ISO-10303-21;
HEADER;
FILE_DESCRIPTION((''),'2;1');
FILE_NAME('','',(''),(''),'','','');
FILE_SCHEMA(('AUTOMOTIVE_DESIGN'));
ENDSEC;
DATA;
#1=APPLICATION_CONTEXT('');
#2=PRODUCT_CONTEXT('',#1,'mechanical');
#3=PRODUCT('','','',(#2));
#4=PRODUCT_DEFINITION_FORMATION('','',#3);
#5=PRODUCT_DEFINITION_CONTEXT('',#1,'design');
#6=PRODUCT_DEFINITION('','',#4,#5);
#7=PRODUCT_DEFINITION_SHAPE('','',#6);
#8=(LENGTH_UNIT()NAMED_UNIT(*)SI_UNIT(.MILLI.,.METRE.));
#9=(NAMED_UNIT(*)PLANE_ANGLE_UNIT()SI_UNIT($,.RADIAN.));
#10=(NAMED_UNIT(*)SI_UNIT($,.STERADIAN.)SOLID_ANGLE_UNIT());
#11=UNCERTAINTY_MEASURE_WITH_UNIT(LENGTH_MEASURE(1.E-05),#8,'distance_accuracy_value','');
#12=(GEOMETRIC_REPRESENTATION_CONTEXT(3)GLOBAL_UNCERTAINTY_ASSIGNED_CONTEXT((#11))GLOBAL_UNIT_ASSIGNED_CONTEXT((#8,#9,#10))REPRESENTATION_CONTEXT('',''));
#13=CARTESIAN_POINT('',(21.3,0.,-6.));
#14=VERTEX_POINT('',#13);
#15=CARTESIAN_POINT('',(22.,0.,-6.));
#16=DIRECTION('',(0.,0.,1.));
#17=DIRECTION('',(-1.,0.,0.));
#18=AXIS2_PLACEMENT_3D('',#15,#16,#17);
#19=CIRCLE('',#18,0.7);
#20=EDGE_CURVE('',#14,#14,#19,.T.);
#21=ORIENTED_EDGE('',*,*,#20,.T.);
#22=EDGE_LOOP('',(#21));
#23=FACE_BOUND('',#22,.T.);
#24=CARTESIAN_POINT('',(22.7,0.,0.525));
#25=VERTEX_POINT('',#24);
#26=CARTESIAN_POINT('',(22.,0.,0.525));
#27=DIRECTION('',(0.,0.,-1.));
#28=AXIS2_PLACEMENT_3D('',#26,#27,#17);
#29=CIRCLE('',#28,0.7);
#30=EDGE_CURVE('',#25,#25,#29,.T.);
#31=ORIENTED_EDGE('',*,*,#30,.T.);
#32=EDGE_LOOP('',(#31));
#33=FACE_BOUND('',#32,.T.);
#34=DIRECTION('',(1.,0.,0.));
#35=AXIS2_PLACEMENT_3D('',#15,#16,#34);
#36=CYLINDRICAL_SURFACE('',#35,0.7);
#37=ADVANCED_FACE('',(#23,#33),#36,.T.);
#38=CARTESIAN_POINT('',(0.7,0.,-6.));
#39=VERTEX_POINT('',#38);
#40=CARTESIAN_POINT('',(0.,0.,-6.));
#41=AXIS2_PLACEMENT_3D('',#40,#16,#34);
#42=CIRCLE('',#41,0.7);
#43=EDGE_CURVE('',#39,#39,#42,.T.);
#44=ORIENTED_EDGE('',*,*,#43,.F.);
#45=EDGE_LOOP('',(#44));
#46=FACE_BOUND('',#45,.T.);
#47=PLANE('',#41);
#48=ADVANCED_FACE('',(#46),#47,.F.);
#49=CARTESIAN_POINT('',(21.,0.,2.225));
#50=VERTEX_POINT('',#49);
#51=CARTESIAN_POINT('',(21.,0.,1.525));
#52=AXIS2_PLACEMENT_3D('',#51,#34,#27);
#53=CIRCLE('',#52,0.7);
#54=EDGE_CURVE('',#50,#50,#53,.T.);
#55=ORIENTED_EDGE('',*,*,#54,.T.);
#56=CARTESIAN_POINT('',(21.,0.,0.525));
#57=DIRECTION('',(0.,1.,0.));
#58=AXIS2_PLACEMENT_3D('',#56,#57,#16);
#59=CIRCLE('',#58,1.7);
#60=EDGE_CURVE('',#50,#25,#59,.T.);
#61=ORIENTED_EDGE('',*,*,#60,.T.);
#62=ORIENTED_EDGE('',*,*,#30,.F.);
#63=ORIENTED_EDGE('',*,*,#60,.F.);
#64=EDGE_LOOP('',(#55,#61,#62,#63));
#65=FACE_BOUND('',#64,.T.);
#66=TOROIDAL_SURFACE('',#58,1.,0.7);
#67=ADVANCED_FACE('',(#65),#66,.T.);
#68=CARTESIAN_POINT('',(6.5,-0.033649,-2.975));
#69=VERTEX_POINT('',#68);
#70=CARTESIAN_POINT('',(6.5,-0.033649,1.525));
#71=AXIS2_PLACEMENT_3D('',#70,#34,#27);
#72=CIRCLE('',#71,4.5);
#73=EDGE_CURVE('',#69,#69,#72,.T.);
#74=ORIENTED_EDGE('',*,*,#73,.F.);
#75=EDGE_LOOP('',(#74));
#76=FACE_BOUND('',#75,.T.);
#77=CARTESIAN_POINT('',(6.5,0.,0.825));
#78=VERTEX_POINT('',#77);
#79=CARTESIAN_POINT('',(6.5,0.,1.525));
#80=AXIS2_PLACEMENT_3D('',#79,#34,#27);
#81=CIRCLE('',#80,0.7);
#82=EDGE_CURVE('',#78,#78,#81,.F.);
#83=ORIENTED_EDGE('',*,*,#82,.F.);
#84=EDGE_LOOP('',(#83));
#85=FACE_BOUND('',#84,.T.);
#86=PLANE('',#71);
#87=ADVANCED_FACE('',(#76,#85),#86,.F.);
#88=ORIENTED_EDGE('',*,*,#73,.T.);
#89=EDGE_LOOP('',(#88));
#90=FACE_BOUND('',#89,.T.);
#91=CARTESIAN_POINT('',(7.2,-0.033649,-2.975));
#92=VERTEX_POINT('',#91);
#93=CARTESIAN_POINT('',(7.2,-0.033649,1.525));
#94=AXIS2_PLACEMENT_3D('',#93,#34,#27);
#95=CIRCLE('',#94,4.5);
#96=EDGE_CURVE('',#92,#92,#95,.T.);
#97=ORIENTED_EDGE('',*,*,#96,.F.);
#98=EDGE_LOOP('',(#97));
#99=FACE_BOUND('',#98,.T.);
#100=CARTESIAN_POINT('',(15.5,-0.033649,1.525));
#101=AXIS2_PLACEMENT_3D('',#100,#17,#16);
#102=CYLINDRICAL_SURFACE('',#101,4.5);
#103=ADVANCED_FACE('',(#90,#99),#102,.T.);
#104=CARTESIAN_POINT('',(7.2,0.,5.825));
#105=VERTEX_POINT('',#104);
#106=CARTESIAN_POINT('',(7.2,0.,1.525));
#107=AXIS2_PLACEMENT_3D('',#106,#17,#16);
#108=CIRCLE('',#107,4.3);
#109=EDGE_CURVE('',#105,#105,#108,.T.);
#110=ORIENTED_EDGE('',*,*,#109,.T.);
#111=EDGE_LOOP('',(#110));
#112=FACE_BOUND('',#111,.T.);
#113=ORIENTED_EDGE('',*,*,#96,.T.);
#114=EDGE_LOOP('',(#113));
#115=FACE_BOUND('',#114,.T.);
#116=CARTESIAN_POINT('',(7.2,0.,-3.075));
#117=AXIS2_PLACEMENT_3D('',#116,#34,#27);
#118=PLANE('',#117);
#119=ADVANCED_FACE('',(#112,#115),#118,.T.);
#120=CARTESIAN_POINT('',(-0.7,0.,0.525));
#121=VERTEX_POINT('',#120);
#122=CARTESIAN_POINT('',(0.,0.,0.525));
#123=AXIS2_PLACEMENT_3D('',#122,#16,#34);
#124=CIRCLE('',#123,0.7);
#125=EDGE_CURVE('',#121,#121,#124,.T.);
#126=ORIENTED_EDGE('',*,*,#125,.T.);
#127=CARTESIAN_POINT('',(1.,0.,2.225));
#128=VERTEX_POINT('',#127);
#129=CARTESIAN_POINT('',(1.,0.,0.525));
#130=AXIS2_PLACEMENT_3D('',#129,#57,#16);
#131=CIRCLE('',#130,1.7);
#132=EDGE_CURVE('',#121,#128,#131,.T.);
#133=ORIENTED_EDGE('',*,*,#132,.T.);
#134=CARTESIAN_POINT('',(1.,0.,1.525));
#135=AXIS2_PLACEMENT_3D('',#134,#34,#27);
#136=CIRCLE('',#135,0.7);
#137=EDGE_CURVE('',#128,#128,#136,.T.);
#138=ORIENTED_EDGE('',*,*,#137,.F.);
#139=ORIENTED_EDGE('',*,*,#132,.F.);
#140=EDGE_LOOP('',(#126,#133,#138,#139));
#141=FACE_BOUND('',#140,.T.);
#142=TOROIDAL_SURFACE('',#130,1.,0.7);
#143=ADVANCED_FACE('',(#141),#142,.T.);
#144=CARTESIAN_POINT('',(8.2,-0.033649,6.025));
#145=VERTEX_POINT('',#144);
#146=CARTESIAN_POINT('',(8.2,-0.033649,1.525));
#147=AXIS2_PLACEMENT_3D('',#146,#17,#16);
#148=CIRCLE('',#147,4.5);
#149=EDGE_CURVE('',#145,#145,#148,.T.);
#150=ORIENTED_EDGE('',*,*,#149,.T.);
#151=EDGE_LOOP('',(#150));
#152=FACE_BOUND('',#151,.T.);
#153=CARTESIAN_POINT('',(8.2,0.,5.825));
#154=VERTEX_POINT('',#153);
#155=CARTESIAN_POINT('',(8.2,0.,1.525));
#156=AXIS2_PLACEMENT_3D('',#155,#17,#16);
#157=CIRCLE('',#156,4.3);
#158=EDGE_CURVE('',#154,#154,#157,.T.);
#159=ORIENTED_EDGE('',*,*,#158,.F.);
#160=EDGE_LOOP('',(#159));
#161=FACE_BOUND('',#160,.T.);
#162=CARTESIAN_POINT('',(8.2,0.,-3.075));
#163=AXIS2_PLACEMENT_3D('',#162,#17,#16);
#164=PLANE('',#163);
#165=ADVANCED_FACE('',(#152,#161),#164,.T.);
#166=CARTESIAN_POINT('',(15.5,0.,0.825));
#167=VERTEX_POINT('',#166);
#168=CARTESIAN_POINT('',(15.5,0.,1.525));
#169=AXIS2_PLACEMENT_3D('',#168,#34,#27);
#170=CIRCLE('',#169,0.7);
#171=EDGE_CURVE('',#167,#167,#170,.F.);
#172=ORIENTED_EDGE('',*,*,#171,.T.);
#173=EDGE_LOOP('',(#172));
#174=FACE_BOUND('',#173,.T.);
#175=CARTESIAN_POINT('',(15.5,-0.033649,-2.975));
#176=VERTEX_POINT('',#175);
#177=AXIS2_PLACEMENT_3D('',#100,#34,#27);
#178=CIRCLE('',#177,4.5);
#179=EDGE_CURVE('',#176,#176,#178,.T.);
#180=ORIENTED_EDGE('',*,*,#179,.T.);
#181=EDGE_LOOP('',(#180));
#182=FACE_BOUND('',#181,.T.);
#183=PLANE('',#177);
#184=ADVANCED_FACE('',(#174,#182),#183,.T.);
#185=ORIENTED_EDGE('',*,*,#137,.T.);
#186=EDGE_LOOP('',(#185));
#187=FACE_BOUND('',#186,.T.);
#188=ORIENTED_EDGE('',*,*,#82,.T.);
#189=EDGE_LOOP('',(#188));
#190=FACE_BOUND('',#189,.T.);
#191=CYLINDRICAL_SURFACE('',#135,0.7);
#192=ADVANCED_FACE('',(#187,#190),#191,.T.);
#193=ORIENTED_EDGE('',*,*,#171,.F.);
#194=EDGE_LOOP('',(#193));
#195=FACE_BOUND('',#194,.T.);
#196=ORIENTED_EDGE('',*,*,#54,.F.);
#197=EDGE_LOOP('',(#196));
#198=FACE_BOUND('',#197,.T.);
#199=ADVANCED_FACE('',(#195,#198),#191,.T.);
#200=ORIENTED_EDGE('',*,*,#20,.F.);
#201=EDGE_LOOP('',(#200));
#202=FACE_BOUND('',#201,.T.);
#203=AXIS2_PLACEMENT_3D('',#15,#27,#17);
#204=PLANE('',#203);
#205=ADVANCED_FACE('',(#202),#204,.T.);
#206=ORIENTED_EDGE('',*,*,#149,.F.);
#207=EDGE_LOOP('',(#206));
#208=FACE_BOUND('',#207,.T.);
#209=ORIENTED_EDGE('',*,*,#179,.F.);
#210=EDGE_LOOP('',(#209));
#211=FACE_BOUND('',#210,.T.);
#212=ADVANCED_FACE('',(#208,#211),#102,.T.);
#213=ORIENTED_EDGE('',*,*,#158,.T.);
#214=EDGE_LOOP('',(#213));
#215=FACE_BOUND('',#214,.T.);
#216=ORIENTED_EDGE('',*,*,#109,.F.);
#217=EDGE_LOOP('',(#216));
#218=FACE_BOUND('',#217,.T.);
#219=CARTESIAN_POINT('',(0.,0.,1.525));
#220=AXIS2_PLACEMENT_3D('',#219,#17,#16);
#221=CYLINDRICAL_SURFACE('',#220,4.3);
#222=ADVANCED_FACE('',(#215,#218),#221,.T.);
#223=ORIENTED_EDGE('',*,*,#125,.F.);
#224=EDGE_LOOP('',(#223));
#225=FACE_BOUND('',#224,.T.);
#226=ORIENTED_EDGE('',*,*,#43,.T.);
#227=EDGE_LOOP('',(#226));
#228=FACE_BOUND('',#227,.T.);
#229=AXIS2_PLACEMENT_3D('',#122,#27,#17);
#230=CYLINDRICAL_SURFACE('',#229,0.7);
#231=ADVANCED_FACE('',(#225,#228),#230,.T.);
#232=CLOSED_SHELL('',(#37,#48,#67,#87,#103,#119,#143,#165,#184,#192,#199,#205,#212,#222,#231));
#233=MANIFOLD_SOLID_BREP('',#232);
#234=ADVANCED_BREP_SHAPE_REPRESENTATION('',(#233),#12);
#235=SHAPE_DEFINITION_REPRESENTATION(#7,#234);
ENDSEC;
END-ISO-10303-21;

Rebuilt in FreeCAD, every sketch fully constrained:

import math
import FreeCAD as App
import Part
import Sketcher
Q = App.Units.Quantity

doc = App.newDocument("Part")
params = doc.addObject("Spreadsheet::Sheet", "Params")
for row, (alias, value) in enumerate([
    ("sketch1_diameter", "9 mm"),
    ("pad1_length", "9 mm"),
    ("sketch2_width", "1 mm"),
    ("sketch2_height", "0.3 mm"),
    ("groove_angle", "360 deg"),
    ("sketch3_diameter", "1.4 mm"),
    ("pad2_length", "6 mm"),
    ("sketch4_diameter", "1.4 mm"),
    ("pad3_length", "6 mm"),
    ("sketch5_diameter", "1.4 mm"),
    ("sketch6_radius", "1 mm"),
    ("sketch6_width", "20 mm"),
], start=1):
    params.set(f"A{row}", alias)
    params.set(f"B{row}", "=" + value)
    params.setAlias(f"B{row}", alias)

body = doc.addObject("PartDesign::Body", "Body")

# Sketch on YZ plane
sketch1 = body.newObject("Sketcher::SketchObject", "Sketch")
sketch1.AttachmentSupport = (doc.getObject("YZ_Plane"), [""])
sketch1.MapMode = "FlatFace"
sketch1.AttachmentOffset = App.Placement(App.Vector(0, 0, 6.5), App.Rotation())
sketch1.addGeometry(Part.Circle(App.Vector(0, 1.5, 0), App.Vector(0, 0, 1), 4.5), False)
sketch1.addConstraint(Sketcher.Constraint("Diameter", 0, Q("9 mm")))
sketch1.addConstraint(Sketcher.Constraint("DistanceY", -1, 1, 0, 3, Q("1.525 mm")))
sketch1.addConstraint(Sketcher.Constraint("DistanceX", 0, 3, -1, 1, Q("0.033649 mm")))
sketch1.setExpression("Constraints[0]", "Params.sketch1_diameter")
pad1 = body.newObject("PartDesign::Pad", "Pad")
pad1.Profile = sketch1
pad1.setExpression("Length", "Params.pad1_length")

# Sketch on XZ plane
sketch2 = body.newObject("Sketcher::SketchObject", "Sketch001")
sketch2.AttachmentSupport = (doc.getObject("XZ_Plane"), [""])
sketch2.MapMode = "FlatFace"
sketch2.addGeometry(Part.LineSegment(App.Vector(7.2, -3.08, 0), App.Vector(7.2, -2.77, 0)), False)
sketch2.addGeometry(Part.LineSegment(App.Vector(7.2, -2.77, 0), App.Vector(8.2, -2.77, 0)), False)
sketch2.addGeometry(Part.LineSegment(App.Vector(8.2, -2.77, 0), App.Vector(8.2, -3.08, 0)), False)
sketch2.addGeometry(Part.LineSegment(App.Vector(8.2, -3.08, 0), App.Vector(7.2, -3.08, 0)), False)
sketch2.addGeometry(Part.LineSegment(App.Vector(7.2, 1.52, 0), App.Vector(8.2, 1.52, 0)), True)  # axis
sketch2.addConstraint(Sketcher.Constraint("Coincident", 0, 2, 1, 1))
sketch2.addConstraint(Sketcher.Constraint("Coincident", 1, 2, 2, 1))
sketch2.addConstraint(Sketcher.Constraint("Coincident", 2, 2, 3, 1))
sketch2.addConstraint(Sketcher.Constraint("Coincident", 3, 2, 0, 1))
sketch2.addConstraint(Sketcher.Constraint("Vertical", 0))
sketch2.addConstraint(Sketcher.Constraint("Horizontal", 1))
sketch2.addConstraint(Sketcher.Constraint("Vertical", 2))
sketch2.addConstraint(Sketcher.Constraint("Horizontal", 3))
sketch2.addConstraint(Sketcher.Constraint("Horizontal", 4))
sketch2.addConstraint(Sketcher.Constraint("Vertical", 3, 2, 4, 1))
sketch2.addConstraint(Sketcher.Constraint("Vertical", 2, 2, 4, 2))
sketch2.addConstraint(Sketcher.Constraint("DistanceX", 1, 1, 1, 2, Q("1 mm")))
sketch2.addConstraint(Sketcher.Constraint("DistanceY", 0, 1, 0, 2, Q("0.3 mm")))
sketch2.addConstraint(Sketcher.Constraint("DistanceX", -1, 1, 0, 2, Q("7.2 mm")))
sketch2.addConstraint(Sketcher.Constraint("DistanceY", 0, 2, 4, 1, Q("4.3 mm")))
sketch2.addConstraint(Sketcher.Constraint("DistanceY", 0, 2, -1, 1, Q("2.775 mm")))
sketch2.setExpression("Constraints[11]", "Params.sketch2_width")
sketch2.setExpression("Constraints[12]", "Params.sketch2_height")
groove = body.newObject("PartDesign::Groove", "Groove")
groove.Profile = sketch2
groove.ReferenceAxis = (sketch2, ["Axis0"])
groove.setExpression("Angle", "Params.groove_angle")
body2 = doc.addObject("PartDesign::Body", "Body001")

# Sketch on XY plane
sketch3 = body2.newObject("Sketcher::SketchObject", "Sketch002")
sketch3.AttachmentSupport = (doc.getObject("XY_Plane001"), [""])
sketch3.MapMode = "FlatFace"
sketch3.addGeometry(Part.Circle(App.Vector(0, 0, 0), App.Vector(0, 0, 1), 0.7), False)
sketch3.addConstraint(Sketcher.Constraint("Coincident", 0, 3, -1, 1))
sketch3.addConstraint(Sketcher.Constraint("Diameter", 0, Q("1.4 mm")))
sketch3.setExpression("Constraints[1]", "Params.sketch3_diameter")
pad2 = body2.newObject("PartDesign::Pad", "Pad001")
pad2.Profile = sketch3
pad2.setExpression("Length", "Params.pad2_length")
pad2.Reversed = True
body3 = doc.addObject("PartDesign::Body", "Body002")

# Sketch on XY plane
sketch4 = body3.newObject("Sketcher::SketchObject", "Sketch003")
sketch4.AttachmentSupport = (doc.getObject("XY_Plane002"), [""])
sketch4.MapMode = "FlatFace"
sketch4.addGeometry(Part.Circle(App.Vector(22, 0, 0), App.Vector(0, 0, 1), 0.7), False)
sketch4.addConstraint(Sketcher.Constraint("PointOnObject", 0, 3, -1))
sketch4.addConstraint(Sketcher.Constraint("Diameter", 0, Q("1.4 mm")))
sketch4.addConstraint(Sketcher.Constraint("DistanceX", -1, 1, 0, 3, Q("22 mm")))
sketch4.setExpression("Constraints[1]", "Params.sketch4_diameter")
pad3 = body3.newObject("PartDesign::Pad", "Pad002")
pad3.Profile = sketch4
pad3.setExpression("Length", "Params.pad3_length")
pad3.Reversed = True
body.AllowCompound = True
doc.recompute()

boolean = body.newObject("PartDesign::Boolean", "Boolean")
boolean.Type = "Fuse"
boolean.addObjects([body2])
doc.recompute()

boolean2 = body.newObject("PartDesign::Boolean", "Boolean001")
boolean2.Type = "Fuse"
boolean2.addObjects([body3])

# Sketch on XY plane
sketch5 = body.newObject("Sketcher::SketchObject", "Sketch004")
sketch5.AttachmentSupport = (doc.getObject("XY_Plane"), [""])
sketch5.MapMode = "FlatFace"
sketch5.addGeometry(Part.Circle(App.Vector(0, 0, 0), App.Vector(0, 0, 1), 0.7), False)
sketch5.addConstraint(Sketcher.Constraint("Coincident", 0, 3, -1, 1))
sketch5.addConstraint(Sketcher.Constraint("Diameter", 0, Q("1.4 mm")))
sketch5.setExpression("Constraints[1]", "Params.sketch5_diameter")

# Sketch on XZ plane
sketch6 = body.newObject("Sketcher::SketchObject", "Sketch005")
sketch6.AttachmentSupport = (doc.getObject("XZ_Plane"), [""])
sketch6.MapMode = "FlatFace"
sketch6.addGeometry(Part.LineSegment(App.Vector(0, 0, 0), App.Vector(0, 0.5, 0)), False)
sketch6.addGeometry(Part.ArcOfCircle(Part.Circle(App.Vector(1, 0.5, 0), App.Vector(0, 0, 1), 1), math.radians(90), math.radians(180)), False)
sketch6.addGeometry(Part.LineSegment(App.Vector(1, 1.5, 0), App.Vector(21, 1.5, 0)), False)
sketch6.addGeometry(Part.ArcOfCircle(Part.Circle(App.Vector(21, 0.5, 0), App.Vector(0, 0, 1), 1), math.radians(0), math.radians(90)), False)
sketch6.addGeometry(Part.LineSegment(App.Vector(22, 0.5, 0), App.Vector(22, 0, 0)), False)
sketch6.addConstraint(Sketcher.Constraint("Tangent", 0, 2, 1, 2))
sketch6.addConstraint(Sketcher.Constraint("Tangent", 1, 1, 2, 1))
sketch6.addConstraint(Sketcher.Constraint("Tangent", 2, 2, 3, 2))
sketch6.addConstraint(Sketcher.Constraint("Tangent", 3, 1, 4, 1))
sketch6.addConstraint(Sketcher.Constraint("Vertical", 0))
sketch6.addConstraint(Sketcher.Constraint("Horizontal", 2))
sketch6.addConstraint(Sketcher.Constraint("Vertical", 4))
sketch6.addConstraint(Sketcher.Constraint("Coincident", 0, 1, -1, 1))
sketch6.addConstraint(Sketcher.Constraint("Equal", 1, 3))
sketch6.addConstraint(Sketcher.Constraint("PointOnObject", 4, 2, -1))
sketch6.addConstraint(Sketcher.Constraint("Radius", 1, Q("1 mm")))
sketch6.addConstraint(Sketcher.Constraint("DistanceX", 2, 1, 2, 2, Q("20 mm")))
sketch6.addConstraint(Sketcher.Constraint("DistanceY", 0, 1, 0, 2, Q("0.525 mm")))
sketch6.setExpression("Constraints[10]", "Params.sketch6_radius")
sketch6.setExpression("Constraints[11]", "Params.sketch6_width")
doc.recompute()

additivepipe = body.newObject("PartDesign::AdditivePipe", "AdditivePipe")
additivepipe.Profile = sketch5
additivepipe.Spine = (sketch6, ["Edge1", "Edge2", "Edge3", "Edge4", "Edge5"])

doc.recompute()
